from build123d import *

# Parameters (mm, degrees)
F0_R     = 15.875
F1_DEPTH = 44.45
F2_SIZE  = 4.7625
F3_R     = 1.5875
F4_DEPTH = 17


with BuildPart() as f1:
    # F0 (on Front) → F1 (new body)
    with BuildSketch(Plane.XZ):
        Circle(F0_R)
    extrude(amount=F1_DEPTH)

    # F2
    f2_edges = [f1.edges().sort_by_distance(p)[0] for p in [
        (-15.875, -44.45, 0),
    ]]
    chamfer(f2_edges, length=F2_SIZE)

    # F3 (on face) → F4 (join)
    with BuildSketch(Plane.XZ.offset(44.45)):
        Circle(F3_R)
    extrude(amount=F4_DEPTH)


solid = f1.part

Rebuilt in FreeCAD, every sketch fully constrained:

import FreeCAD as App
import Part
import Sketcher
from FreeCAD import Vector
Q = App.Units.Quantity


def edges_at(feature, points):
    """Names of the edges that pass closest to the given points."""
    edges = feature.Shape.Edges
    near = lambda p: min(range(len(edges)), key=lambda i: edges[i].distToShape(Part.Vertex(*p))[0])
    return sorted({f"Edge{near(p) + 1}" for p in points})

doc = App.newDocument("Part")
params = doc.addObject("Spreadsheet::Sheet", "Params")
for row, (alias, value) in enumerate([
    ("sketch1_diameter", "1.25 in"),
    ("pad1_length", "1.75 in"),
    ("chamfer_size", "0.1875 in"),
    ("sketch2_diameter", "0.125 in"),
    ("pad2_length", "17 mm"),
], start=1):
    params.set(f"A{row}", alias)
    params.set(f"B{row}", "=" + value)
    params.setAlias(f"B{row}", alias)

body = doc.addObject("PartDesign::Body", "Body")

sketch1 = body.newObject("Sketcher::SketchObject", "Sketch")
sketch1.AttachmentSupport = (doc.getObject("XZ_Plane"), [""])
sketch1.MapMode = "FlatFace"
sketch1.addGeometry(Part.Circle(Vector(0, 0, 0), Vector(0, 0, 1), 16), False)
sketch1.addConstraint([
    Sketcher.Constraint("Coincident", 0, 3, -1, 1),
    Sketcher.Constraint("Diameter", 0, Q("1.25 in")),
])
sketch1.setExpression("Constraints[1]", "Params.sketch1_diameter")
pad1 = body.newObject("PartDesign::Pad", "Pad")
pad1.Profile = sketch1
pad1.setExpression("Length", "Params.pad1_length")
doc.recompute()

chamfer = body.newObject("PartDesign::Chamfer", "Chamfer")
chamfer.Base = (pad1, edges_at(pad1, [(-15.875, -44.45, 0)]))
chamfer.setExpression("Size", "Params.chamfer_size")

sketch2 = body.newObject("Sketcher::SketchObject", "Sketch001")
sketch2.AttachmentSupport = (doc.getObject("XZ_Plane"), [""])
sketch2.MapMode = "FlatFace"
sketch2.AttachmentOffset = App.Placement(Vector(0, 0, 1.75 * 25.4), App.Rotation())
sketch2.addGeometry(Part.Circle(Vector(0, 0, 0), Vector(0, 0, 1), 1.6), False)
sketch2.addConstraint([
    Sketcher.Constraint("Coincident", 0, 3, -1, 1),
    Sketcher.Constraint("Diameter", 0, Q("0.125 in")),
])
sketch2.setExpression("Constraints[1]", "Params.sketch2_diameter")
pad2 = body.newObject("PartDesign::Pad", "Pad001")
pad2.Profile = sketch2
pad2.setExpression("Length", "Params.pad2_length")

doc.recompute()
